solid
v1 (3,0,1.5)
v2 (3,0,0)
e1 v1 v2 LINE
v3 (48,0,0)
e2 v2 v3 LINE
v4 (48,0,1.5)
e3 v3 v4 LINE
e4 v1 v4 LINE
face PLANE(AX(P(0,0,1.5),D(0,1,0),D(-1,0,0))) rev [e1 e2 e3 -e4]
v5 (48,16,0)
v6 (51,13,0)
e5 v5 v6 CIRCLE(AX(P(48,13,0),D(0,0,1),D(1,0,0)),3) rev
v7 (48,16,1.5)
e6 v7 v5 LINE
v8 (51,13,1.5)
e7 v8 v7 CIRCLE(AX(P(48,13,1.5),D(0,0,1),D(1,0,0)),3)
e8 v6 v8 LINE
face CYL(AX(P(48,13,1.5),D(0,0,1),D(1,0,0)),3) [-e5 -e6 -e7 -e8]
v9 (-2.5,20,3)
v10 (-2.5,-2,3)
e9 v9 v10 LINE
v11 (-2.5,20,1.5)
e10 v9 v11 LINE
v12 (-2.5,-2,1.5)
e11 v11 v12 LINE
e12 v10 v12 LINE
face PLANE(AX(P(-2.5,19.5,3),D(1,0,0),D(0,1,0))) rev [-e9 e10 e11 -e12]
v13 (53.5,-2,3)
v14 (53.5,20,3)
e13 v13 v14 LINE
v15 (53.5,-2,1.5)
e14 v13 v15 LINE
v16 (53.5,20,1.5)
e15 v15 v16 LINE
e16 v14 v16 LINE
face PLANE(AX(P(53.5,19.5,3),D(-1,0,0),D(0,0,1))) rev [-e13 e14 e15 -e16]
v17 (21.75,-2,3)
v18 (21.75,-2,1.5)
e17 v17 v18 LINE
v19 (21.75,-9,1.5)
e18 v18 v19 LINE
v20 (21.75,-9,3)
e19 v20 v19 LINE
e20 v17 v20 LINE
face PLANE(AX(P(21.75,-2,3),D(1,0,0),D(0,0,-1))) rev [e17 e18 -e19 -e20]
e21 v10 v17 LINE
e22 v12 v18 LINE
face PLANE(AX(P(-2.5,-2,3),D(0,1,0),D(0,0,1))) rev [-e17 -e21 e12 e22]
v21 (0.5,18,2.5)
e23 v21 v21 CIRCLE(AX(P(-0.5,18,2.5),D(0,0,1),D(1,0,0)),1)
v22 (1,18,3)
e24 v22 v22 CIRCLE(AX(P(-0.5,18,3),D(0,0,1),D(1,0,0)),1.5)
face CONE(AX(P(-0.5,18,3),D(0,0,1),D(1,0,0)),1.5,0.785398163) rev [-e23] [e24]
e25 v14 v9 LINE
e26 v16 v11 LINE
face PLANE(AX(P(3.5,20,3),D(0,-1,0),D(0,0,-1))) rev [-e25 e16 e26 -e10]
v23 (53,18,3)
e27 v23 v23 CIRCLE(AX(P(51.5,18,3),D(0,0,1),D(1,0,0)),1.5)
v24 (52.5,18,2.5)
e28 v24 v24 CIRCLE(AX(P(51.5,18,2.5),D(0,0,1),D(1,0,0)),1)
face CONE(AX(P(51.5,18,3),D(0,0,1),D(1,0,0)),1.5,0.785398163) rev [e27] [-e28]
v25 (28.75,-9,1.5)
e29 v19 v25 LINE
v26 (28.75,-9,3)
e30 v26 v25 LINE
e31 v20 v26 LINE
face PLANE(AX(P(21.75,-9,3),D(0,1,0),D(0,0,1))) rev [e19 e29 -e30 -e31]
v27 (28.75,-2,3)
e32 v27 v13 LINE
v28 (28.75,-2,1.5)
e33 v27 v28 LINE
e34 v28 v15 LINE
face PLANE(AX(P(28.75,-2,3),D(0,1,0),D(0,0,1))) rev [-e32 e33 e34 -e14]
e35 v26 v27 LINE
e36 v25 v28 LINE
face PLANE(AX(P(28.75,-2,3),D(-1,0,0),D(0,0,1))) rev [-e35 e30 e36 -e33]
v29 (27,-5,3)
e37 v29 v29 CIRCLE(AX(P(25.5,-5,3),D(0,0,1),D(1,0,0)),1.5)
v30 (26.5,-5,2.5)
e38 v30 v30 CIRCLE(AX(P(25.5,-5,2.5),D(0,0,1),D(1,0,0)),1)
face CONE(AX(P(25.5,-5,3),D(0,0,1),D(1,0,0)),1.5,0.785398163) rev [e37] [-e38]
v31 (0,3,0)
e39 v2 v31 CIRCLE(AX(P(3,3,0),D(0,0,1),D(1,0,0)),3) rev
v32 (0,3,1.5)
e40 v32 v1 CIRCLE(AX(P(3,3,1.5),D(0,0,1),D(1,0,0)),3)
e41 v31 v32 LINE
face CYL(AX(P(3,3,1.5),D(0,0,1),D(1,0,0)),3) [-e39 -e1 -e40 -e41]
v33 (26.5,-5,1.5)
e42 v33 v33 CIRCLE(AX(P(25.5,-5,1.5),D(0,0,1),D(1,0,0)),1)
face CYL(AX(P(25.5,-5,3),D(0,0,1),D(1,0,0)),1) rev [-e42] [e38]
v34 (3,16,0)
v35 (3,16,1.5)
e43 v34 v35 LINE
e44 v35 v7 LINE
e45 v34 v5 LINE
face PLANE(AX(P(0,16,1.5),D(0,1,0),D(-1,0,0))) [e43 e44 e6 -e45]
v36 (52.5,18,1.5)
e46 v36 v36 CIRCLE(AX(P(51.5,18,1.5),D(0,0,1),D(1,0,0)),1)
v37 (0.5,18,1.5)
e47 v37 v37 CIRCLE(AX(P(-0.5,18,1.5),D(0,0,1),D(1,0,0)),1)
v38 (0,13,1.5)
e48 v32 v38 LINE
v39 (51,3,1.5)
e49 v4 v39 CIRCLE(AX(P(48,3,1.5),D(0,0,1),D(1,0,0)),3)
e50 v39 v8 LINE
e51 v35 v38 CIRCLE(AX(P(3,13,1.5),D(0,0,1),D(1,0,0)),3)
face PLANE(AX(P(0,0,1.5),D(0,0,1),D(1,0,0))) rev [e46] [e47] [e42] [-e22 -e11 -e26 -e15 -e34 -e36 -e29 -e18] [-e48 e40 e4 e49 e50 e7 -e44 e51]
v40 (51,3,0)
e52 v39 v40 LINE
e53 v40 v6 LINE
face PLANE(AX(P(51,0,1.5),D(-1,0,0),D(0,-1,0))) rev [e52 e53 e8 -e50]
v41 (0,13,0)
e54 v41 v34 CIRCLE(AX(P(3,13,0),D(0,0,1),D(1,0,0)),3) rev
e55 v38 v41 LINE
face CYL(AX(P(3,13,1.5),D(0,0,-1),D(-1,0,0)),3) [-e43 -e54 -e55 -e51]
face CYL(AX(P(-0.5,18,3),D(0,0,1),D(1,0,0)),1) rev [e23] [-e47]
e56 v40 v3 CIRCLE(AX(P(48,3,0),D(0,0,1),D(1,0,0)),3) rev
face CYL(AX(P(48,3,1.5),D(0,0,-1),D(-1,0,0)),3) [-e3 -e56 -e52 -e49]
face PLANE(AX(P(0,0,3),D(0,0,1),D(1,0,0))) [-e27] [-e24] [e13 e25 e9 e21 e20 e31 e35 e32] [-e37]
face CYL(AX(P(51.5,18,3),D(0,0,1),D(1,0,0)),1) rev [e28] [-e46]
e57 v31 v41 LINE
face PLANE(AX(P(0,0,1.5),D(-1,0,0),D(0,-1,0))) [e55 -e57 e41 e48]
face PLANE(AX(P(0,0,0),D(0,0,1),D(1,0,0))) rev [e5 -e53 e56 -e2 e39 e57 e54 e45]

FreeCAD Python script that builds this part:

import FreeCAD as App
import Part
import Sketcher

V = App.Vector


def edges_at(feature, points):
    """Names of the edges that pass closest to the given points."""
    edges = feature.Shape.Edges
    near = lambda p: min(range(len(edges)), key=lambda i: edges[i].distToShape(Part.Vertex(*p))[0])
    return sorted({f"Edge{near(p) + 1}" for p in points})


def add_polygon(sketch, points):
    """Adds a closed chain of lines whose ends are joined by coincident constraints."""
    first, n = sketch.GeometryCount, len(points)
    for a, b in zip(points, points[1:] + points[:1]):
        sketch.addGeometry(Part.LineSegment(App.Vector(*a, 0), App.Vector(*b, 0)), False)
    for i in range(n):
        sketch.addConstraint(Sketcher.Constraint("Coincident", first + i, 2, first + (i + 1) % n, 1))

doc = App.newDocument("Part")
body = doc.addObject("PartDesign::Body", "Body")

# Sketch on XY plane
sketch1 = doc.addObject("Sketcher::SketchObject", "Sketch")
body.addObject(sketch1)
sketch1.AttachmentSupport = (doc.XY_Plane, [""])
sketch1.MapMode = "FlatFace"
add_polygon(sketch1, [(0, 16), (0, 0), (51, 0), (51, 16)])  # lines 0-3
sketch1.addConstraint(Sketcher.Constraint("Vertical", 0))
sketch1.addConstraint(Sketcher.Constraint("Horizontal", 1))
sketch1.addConstraint(Sketcher.Constraint("Vertical", 2))
sketch1.addConstraint(Sketcher.Constraint("Horizontal", 3))
sketch1.addConstraint(Sketcher.Constraint("Coincident", 0, 2, -1, 1))
sketch1.addConstraint(Sketcher.Constraint("DistanceX", 1, 1, 1, 2, 51.0))
sketch1.addConstraint(Sketcher.Constraint("DistanceY", 0, 2, 0, 1, 16.0))
pad1 = doc.addObject("PartDesign::Pad", "Pad")
body.addObject(pad1)
pad1.Profile = sketch1
pad1.Length = 1.5

# Sketch on XY plane
sketch2 = doc.addObject("Sketcher::SketchObject", "Sketch001")
body.addObject(sketch2)
sketch2.AttachmentSupport = (doc.XY_Plane, [""])
sketch2.MapMode = "FlatFace"
sketch2.AttachmentOffset = App.Placement(V(0, 0, 1.5), App.Rotation())
add_polygon(sketch2, [(53.5, 20), (-2.5, 20), (-2.5, -2), (21.75, -2), (21.75, -9), (28.75, -9), (28.75, -2), (53.5, -2)])  # lines 0-7
sketch2.addConstraint(Sketcher.Constraint("Horizontal", 0))
sketch2.addConstraint(Sketcher.Constraint("Vertical", 1))
sketch2.addConstraint(Sketcher.Constraint("Horizontal", 2))
sketch2.addConstraint(Sketcher.Constraint("Vertical", 3))
sketch2.addConstraint(Sketcher.Constraint("Horizontal", 4))
sketch2.addConstraint(Sketcher.Constraint("Vertical", 5))
sketch2.addConstraint(Sketcher.Constraint("Horizontal", 6))
sketch2.addConstraint(Sketcher.Constraint("Vertical", 7))
sketch2.addConstraint(Sketcher.Constraint("Horizontal", 2, 2, 5, 2))
sketch2.addConstraint(Sketcher.Constraint("Equal", 4, 3))
sketch2.addConstraint(Sketcher.Constraint("DistanceX", 0, 2, 0, 1, 56.0))
sketch2.addConstraint(Sketcher.Constraint("DistanceX", 4, 1, 4, 2, 7.0))
sketch2.addConstraint(Sketcher.Constraint("DistanceY", 1, 2, 1, 1, 22.0))
sketch2.addConstraint(Sketcher.Constraint("DistanceY", -1, 1, 0, 2, 20.0))
sketch2.addConstraint(Sketcher.Constraint("DistanceX", 2, 1, 2, 2, 24.25))
sketch2.addConstraint(Sketcher.Constraint("DistanceX", 0, 2, -1, 1, 2.5))
pad2 = doc.addObject("PartDesign::Pad", "Pad001")
body.addObject(pad2)
pad2.Profile = sketch2
pad2.Length = 1.5
doc.recompute()

fillet = doc.addObject("PartDesign::Fillet", "Fillet")
body.addObject(fillet)
fillet.Base = (pad2, edges_at(pad2, [
    (0, 0, 0.75),
    (0, 16, 0.75),
    (51, 16, 0.75),
    (51, 0, 0.75),
]))
fillet.Radius = 3

# Sketch on XY plane
sketch3 = doc.addObject("Sketcher::SketchObject", "Sketch002")
body.addObject(sketch3)
sketch3.AttachmentSupport = (doc.XY_Plane, [""])
sketch3.MapMode = "FlatFace"
sketch3.AttachmentOffset = App.Placement(V(0, 0, 3), App.Rotation())
sketch3.addGeometry(Part.Circle(V(25.5, -5, 0), V(0, 0, 1), 1), False)
sketch3.addGeometry(Part.Circle(V(-0.5, 18, 0), V(0, 0, 1), 1), False)
sketch3.addGeometry(Part.Circle(V(51.5, 18, 0), V(0, 0, 1), 1), False)
sketch3.addConstraint(Sketcher.Constraint("Equal", 0, 1))
sketch3.addConstraint(Sketcher.Constraint("Equal", 1, 2))
sketch3.addConstraint(Sketcher.Constraint("Horizontal", 1, 3, 2, 3))
sketch3.addConstraint(Sketcher.Constraint("Diameter", 0, 2.0))
sketch3.addConstraint(Sketcher.Constraint("DistanceY", 0, 3, -1, 1, 5.0))
sketch3.addConstraint(Sketcher.Constraint("DistanceY", -1, 1, 1, 3, 18.0))
sketch3.addConstraint(Sketcher.Constraint("DistanceX", 1, 3, 0, 3, 26.0))
sketch3.addConstraint(Sketcher.Constraint("DistanceX", 0, 3, 2, 3, 26.0))
sketch3.addConstraint(Sketcher.Constraint("DistanceX", -1, 1, 0, 3, 25.5))
doc.recompute()
hole = doc.addObject("PartDesign::Hole", "Hole")
body.addObject(hole)
hole.Profile = sketch3
hole.ThreadType = "None"
hole.Diameter = 2
hole.DepthType = "ThroughAll"
hole.HoleCutType = "Countersink"
hole.HoleCutDiameter = 3
hole.HoleCutCountersinkAngle = 90

doc.recompute()
